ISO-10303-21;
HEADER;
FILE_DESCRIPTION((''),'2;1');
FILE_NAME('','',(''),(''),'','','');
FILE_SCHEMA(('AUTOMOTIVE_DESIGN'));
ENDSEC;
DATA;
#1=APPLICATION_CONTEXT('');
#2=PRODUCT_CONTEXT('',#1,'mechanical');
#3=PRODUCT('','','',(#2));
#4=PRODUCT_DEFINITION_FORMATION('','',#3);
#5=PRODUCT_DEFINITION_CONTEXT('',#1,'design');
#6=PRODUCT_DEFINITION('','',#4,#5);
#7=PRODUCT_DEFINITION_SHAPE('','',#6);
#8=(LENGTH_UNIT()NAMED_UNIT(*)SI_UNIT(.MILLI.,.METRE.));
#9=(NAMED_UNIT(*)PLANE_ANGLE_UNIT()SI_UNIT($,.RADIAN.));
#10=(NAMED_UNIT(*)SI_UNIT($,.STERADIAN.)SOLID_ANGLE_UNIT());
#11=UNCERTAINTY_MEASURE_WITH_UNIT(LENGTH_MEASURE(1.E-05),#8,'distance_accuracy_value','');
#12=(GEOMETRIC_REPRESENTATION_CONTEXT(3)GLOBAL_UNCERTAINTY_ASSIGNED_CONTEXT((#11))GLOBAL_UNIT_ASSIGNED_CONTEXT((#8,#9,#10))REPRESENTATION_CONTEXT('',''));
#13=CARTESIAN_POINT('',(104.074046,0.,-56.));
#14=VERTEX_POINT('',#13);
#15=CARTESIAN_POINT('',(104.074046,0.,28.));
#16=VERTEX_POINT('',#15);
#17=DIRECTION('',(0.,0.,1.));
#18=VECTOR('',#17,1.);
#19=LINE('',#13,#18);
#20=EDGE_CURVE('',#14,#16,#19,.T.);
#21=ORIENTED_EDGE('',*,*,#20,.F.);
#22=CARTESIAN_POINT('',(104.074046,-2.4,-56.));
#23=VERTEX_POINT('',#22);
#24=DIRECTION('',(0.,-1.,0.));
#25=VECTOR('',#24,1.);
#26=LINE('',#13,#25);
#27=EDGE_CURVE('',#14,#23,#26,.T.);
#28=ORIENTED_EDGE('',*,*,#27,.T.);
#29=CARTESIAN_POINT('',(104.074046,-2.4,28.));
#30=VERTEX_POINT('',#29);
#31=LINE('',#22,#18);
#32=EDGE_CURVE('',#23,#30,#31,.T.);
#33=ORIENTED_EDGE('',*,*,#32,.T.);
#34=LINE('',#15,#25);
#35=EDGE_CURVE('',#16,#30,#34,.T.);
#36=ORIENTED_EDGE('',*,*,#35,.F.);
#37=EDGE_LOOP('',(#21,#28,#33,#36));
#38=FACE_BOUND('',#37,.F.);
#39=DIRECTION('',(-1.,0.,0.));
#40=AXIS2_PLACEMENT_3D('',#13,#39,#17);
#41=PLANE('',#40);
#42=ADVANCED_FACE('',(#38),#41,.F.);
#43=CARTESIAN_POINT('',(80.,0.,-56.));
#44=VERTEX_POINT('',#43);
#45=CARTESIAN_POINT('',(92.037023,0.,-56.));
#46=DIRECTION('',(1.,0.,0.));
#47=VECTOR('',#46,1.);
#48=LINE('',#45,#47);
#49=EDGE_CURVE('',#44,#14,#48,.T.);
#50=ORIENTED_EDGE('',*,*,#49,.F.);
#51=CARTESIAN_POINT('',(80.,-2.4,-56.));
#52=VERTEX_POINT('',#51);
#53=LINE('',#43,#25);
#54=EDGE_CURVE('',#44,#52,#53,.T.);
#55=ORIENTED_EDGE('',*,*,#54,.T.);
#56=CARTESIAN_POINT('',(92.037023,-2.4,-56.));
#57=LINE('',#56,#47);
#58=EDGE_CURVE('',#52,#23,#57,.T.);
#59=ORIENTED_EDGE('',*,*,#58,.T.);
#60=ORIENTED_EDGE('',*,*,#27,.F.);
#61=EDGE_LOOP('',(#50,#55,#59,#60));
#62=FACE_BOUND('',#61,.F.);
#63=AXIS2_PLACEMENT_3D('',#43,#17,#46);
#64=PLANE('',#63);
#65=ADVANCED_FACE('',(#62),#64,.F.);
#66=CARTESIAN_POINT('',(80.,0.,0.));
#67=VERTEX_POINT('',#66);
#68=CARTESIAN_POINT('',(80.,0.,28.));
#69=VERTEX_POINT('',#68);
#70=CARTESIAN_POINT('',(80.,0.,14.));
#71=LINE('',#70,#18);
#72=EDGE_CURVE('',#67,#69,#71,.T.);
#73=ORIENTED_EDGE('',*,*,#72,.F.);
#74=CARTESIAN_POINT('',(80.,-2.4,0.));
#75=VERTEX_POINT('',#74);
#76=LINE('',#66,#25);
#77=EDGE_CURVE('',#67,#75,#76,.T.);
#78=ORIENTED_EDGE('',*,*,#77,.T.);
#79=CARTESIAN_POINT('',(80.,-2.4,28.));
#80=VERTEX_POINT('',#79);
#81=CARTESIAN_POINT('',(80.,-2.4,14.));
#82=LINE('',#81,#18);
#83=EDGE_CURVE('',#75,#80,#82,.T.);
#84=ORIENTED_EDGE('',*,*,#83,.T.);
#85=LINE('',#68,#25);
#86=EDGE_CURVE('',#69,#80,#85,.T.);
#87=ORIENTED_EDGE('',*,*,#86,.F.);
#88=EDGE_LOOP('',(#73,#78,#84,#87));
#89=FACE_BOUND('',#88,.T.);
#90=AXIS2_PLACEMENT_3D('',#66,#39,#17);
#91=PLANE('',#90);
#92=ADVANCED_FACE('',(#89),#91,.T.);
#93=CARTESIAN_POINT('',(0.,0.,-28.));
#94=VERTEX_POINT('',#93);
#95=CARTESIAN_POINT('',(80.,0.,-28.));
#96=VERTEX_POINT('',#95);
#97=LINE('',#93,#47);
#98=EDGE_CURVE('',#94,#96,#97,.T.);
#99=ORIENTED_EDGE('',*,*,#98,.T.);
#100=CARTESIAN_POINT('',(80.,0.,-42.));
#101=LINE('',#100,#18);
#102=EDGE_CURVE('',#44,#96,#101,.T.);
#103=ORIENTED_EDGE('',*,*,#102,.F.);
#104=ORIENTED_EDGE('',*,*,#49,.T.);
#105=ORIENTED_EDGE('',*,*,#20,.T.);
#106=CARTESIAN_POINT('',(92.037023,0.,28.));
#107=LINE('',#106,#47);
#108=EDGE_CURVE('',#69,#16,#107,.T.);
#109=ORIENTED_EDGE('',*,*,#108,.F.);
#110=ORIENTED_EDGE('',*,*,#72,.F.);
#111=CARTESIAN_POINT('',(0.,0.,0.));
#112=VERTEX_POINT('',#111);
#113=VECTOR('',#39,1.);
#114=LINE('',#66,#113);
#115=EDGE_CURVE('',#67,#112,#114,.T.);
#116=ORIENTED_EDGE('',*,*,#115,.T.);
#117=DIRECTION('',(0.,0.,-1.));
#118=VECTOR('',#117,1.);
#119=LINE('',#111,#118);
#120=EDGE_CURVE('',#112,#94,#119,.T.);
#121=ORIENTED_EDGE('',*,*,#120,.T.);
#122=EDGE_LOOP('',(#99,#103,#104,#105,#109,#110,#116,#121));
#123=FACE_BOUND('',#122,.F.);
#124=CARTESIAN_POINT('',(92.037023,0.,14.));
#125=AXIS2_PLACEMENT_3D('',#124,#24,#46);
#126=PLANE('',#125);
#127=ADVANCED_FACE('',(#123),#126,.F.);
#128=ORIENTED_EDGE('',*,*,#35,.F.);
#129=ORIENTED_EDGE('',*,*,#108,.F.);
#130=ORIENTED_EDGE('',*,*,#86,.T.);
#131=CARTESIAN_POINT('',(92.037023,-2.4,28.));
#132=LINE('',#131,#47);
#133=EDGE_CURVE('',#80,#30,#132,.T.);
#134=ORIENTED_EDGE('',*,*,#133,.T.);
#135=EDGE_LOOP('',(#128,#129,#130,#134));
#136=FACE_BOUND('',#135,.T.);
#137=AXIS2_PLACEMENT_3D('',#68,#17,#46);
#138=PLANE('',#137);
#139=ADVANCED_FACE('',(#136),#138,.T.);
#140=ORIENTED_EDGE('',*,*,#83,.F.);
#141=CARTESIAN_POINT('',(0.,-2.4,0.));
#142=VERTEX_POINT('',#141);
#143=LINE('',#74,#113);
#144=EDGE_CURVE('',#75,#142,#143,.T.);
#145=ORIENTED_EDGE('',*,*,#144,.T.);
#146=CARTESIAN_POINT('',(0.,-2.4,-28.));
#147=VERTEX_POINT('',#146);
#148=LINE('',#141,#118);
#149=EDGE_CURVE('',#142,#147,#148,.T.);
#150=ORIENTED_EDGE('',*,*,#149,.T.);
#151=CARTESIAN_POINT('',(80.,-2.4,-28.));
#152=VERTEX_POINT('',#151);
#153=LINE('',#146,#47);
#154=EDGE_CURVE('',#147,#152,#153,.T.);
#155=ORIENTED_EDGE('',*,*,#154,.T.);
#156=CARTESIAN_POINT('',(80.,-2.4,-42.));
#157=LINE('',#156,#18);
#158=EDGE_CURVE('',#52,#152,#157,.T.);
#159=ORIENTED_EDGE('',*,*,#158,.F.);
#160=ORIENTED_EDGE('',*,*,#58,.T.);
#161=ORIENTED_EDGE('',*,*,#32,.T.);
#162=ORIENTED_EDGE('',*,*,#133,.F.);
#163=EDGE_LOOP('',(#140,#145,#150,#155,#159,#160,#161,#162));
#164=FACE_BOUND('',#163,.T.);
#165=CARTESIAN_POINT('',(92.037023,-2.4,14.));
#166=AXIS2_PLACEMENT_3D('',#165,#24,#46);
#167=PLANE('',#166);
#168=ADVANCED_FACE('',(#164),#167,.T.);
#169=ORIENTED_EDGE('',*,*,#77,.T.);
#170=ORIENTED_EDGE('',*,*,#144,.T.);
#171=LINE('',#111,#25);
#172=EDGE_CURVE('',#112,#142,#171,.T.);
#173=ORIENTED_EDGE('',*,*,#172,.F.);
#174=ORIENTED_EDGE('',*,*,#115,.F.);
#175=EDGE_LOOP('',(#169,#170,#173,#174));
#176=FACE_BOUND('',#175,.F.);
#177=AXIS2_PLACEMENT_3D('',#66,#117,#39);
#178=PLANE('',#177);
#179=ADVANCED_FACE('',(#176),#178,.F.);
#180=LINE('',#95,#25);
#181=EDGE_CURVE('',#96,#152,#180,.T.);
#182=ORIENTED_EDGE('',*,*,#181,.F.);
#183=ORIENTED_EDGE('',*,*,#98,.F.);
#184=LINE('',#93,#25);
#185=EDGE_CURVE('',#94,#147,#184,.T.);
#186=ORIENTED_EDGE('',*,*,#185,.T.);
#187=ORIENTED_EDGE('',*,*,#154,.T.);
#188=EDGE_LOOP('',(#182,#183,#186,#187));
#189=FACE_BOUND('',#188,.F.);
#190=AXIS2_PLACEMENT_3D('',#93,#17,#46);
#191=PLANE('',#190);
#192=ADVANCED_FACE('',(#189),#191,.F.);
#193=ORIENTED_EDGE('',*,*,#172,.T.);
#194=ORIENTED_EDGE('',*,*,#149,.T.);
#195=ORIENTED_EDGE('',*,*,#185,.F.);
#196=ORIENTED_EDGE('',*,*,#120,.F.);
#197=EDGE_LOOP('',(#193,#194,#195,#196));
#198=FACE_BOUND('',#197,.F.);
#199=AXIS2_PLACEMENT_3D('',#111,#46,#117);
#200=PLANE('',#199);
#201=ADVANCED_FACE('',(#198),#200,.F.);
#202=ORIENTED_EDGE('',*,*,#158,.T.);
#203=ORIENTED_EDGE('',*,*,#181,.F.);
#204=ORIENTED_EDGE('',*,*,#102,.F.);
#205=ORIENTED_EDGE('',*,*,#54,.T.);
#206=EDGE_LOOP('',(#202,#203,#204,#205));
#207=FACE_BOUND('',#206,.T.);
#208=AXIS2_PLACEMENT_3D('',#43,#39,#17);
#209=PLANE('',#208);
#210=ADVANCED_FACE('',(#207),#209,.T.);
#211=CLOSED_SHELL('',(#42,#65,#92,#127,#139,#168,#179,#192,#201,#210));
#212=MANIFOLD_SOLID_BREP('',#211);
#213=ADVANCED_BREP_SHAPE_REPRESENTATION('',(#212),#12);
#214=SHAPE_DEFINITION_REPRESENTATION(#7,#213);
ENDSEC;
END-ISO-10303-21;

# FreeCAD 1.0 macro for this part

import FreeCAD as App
import Part
import Sketcher

V = App.Vector
Q = App.Units.Quantity

doc = App.newDocument("Part")
body = doc.addObject("PartDesign::Body", "Body")

# Sketch on XZ plane
sketch1 = doc.addObject("Sketcher::SketchObject", "Sketch")
body.addObject(sketch1)
sketch1.AttachmentSupport = (doc.XZ_Plane, [""])
sketch1.MapMode = "FlatFace"
sketch1.addGeometry([
    Part.LineSegment(V(80, 28, 0), V(80, 0, 0)),  # 0
    Part.LineSegment(V(80, 0, 0), V(0, 0, 0)),  # 1
    Part.LineSegment(V(0, 0, 0), V(0, -28, 0)),  # 2
    Part.LineSegment(V(0, -28, 0), V(80, -28, 0)),  # 3
    Part.LineSegment(V(80, -28, 0), V(80, -56, 0)),  # 4
    Part.LineSegment(V(80, -56, 0), V(104.074046, -56, 0)),  # 5
    Part.LineSegment(V(104.074046, -56, 0), V(104.074046, 28, 0)),  # 6
    Part.LineSegment(V(104.074046, 28, 0), V(80, 28, 0)),  # 7
], False)
sketch1.addConstraint([
    Sketcher.Constraint("Coincident", 0, 2, 1, 1),
    Sketcher.Constraint("Coincident", 1, 2, 2, 1),
    Sketcher.Constraint("Coincident", 2, 2, 3, 1),
    Sketcher.Constraint("Coincident", 3, 2, 4, 1),
    Sketcher.Constraint("Coincident", 4, 2, 5, 1),
    Sketcher.Constraint("Coincident", 5, 2, 6, 1),
    Sketcher.Constraint("Coincident", 6, 2, 7, 1),
    Sketcher.Constraint("Coincident", 7, 2, 0, 1),
    Sketcher.Constraint("Vertical", 0),
    Sketcher.Constraint("Horizontal", 1),
    Sketcher.Constraint("Vertical", 2),
    Sketcher.Constraint("Horizontal", 3),
    Sketcher.Constraint("Vertical", 4),
    Sketcher.Constraint("Horizontal", 5),
    Sketcher.Constraint("Vertical", 6),
    Sketcher.Constraint("Horizontal", 7),
    Sketcher.Constraint("Coincident", 1, 2, -1, 1),
    Sketcher.Constraint("Symmetric", 3, 2, 7, 2, -1),
    Sketcher.Constraint("Equal", 2, 4),
    Sketcher.Constraint("DistanceX", 1, 2, 1, 1, Q("80 mm")),
    Sketcher.Constraint("DistanceY", 0, 2, 0, 1, Q("28 mm")),
    Sketcher.Constraint("DistanceX", 5, 1, 5, 2, Q("24.074046 mm")),
])
pad1 = doc.addObject("PartDesign::Pad", "Pad")
body.addObject(pad1)
pad1.Profile = sketch1
pad1.Length = 2.4

doc.recompute()
